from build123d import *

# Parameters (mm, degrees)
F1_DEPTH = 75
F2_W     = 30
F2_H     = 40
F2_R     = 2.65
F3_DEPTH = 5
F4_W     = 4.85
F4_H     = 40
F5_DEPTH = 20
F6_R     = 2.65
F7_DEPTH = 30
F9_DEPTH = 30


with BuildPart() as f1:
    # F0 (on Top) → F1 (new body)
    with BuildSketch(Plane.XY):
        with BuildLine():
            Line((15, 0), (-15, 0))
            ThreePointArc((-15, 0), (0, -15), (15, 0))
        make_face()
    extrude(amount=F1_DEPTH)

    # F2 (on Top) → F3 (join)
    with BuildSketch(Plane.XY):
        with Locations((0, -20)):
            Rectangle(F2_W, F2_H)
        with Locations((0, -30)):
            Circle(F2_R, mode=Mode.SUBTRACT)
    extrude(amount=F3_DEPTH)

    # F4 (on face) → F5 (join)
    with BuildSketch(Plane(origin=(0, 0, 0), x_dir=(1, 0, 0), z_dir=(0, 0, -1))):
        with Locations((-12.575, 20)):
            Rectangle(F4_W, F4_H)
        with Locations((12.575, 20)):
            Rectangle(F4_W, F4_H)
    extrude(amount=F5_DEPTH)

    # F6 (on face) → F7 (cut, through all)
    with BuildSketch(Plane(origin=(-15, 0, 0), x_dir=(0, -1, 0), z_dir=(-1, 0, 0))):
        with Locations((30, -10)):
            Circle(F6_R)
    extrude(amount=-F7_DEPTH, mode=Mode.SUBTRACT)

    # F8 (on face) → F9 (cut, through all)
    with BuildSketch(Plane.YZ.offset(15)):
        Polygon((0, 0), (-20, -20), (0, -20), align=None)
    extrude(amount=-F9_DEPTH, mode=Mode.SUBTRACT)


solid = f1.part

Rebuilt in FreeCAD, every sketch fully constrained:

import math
import FreeCAD as App
import Part
import Sketcher
Q = App.Units.Quantity


def add_polygon(sketch, points):
    """Adds a closed chain of lines whose ends are joined by coincident constraints."""
    first, n = sketch.GeometryCount, len(points)
    for a, b in zip(points, points[1:] + points[:1]):
        sketch.addGeometry(Part.LineSegment(App.Vector(*a, 0), App.Vector(*b, 0)), False)
    for i in range(n):
        sketch.addConstraint(Sketcher.Constraint("Coincident", first + i, 2, first + (i + 1) % n, 1))

doc = App.newDocument("Part")
body = doc.addObject("PartDesign::Body", "Body")

sketch1 = doc.addObject("Sketcher::SketchObject", "Sketch")
body.addObject(sketch1)
sketch1.AttachmentSupport = (doc.XY_Plane, [""])
sketch1.MapMode = "FlatFace"
sketch1.addGeometry([
    Part.LineSegment(App.Vector(15, 0, 0), App.Vector(-15, 0, 0)),
    Part.ArcOfCircle(Part.Circle(App.Vector(0, 0, 0), App.Vector(0, 0, 1), 15), math.radians(180), math.radians(360)),
], False)
sketch1.addConstraint([
    Sketcher.Constraint("Coincident", 0, 1, 1, 2),
    Sketcher.Constraint("Coincident", 1, 1, 0, 2),
    Sketcher.Constraint("Horizontal", 0),
    Sketcher.Constraint("Coincident", 1, 3, -1, 1),
    Sketcher.Constraint("PointOnObject", 0, 1, -1),
    Sketcher.Constraint("Radius", 1, Q("15 mm")),
])
pad1 = doc.addObject("PartDesign::Pad", "Pad")
body.addObject(pad1)
pad1.Profile = sketch1
pad1.Length = 75

sketch2 = doc.addObject("Sketcher::SketchObject", "Sketch001")
body.addObject(sketch2)
sketch2.AttachmentSupport = (doc.XY_Plane, [""])
sketch2.MapMode = "FlatFace"
add_polygon(sketch2, [(-15, 0), (-15, -40), (15, -40), (15, 0)])
sketch2.addGeometry(Part.Circle(App.Vector(0, -30, 0), App.Vector(0, 0, 1), 2.6), False)
sketch2.addConstraint([
    Sketcher.Constraint("Vertical", 0),
    Sketcher.Constraint("Horizontal", 1),
    Sketcher.Constraint("Vertical", 2),
    Sketcher.Constraint("Horizontal", 3),
    Sketcher.Constraint("Symmetric", 2, 2, 3, 2, -1, 1),
    Sketcher.Constraint("PointOnObject", 4, 3, -2),
    Sketcher.Constraint("Diameter", 4, Q("5.3 mm")),
    Sketcher.Constraint("DistanceX", 1, 1, 1, 2, Q("30 mm")),
    Sketcher.Constraint("DistanceY", 0, 2, 0, 1, Q("40 mm")),
    Sketcher.Constraint("DistanceY", 4, 3, -1, 1, Q("30 mm")),
])
pad2 = doc.addObject("PartDesign::Pad", "Pad001")
body.addObject(pad2)
pad2.Profile = sketch2
pad2.Length = 5

sketch3 = doc.addObject("Sketcher::SketchObject", "Sketch002")
body.addObject(sketch3)
sketch3.AttachmentSupport = (doc.XY_Plane, [""])
sketch3.MapMode = "FlatFace"
add_polygon(sketch3, [(-15, -40), (-15, 0), (-10.2, 0), (-10.2, -40)])
add_polygon(sketch3, [(10.2, -40), (10.2, 0), (15, 0), (15, -40)])
sketch3.addConstraint([
    Sketcher.Constraint("Vertical", 0),
    Sketcher.Constraint("Horizontal", 1),
    Sketcher.Constraint("Vertical", 2),
    Sketcher.Constraint("Horizontal", 3),
    Sketcher.Constraint("Vertical", 4),
    Sketcher.Constraint("Horizontal", 5),
    Sketcher.Constraint("Vertical", 6),
    Sketcher.Constraint("Horizontal", 7),
    Sketcher.Constraint("Symmetric", 1, 2, 4, 2, -1, 1),
    Sketcher.Constraint("Symmetric", 0, 2, 5, 2, -2),
    Sketcher.Constraint("Horizontal", 3, 2, 6, 2),
    Sketcher.Constraint("DistanceY", 0, 1, 0, 2, Q("40 mm")),
    Sketcher.Constraint("DistanceX", 0, 2, -1, 1, Q("15 mm")),
    Sketcher.Constraint("DistanceX", 1, 1, 1, 2, Q("4.85 mm")),
])
pad3 = doc.addObject("PartDesign::Pad", "Pad002")
body.addObject(pad3)
pad3.Profile = sketch3
pad3.Length = 20
pad3.Reversed = True

sketch4 = doc.addObject("Sketcher::SketchObject", "Sketch003")
body.addObject(sketch4)
sketch4.AttachmentSupport = (doc.YZ_Plane, [""])
sketch4.MapMode = "FlatFace"
sketch4.AttachmentOffset = App.Placement(App.Vector(0, 0, -15), App.Rotation())
sketch4.addGeometry(Part.Circle(App.Vector(-30, -10, 0), App.Vector(0, 0, 1), 2.6), False)
sketch4.addConstraint([
    Sketcher.Constraint("Diameter", 0, Q("5.3 mm")),
    Sketcher.Constraint("DistanceX", 0, 3, -1, 1, Q("30 mm")),
    Sketcher.Constraint("DistanceY", 0, 3, -1, 1, Q("10 mm")),
])
pocket1 = doc.addObject("PartDesign::Pocket", "Pocket")
body.addObject(pocket1)
pocket1.Profile = sketch4
pocket1.Type = "ThroughAll"
pocket1.Reversed = True

sketch5 = doc.addObject("Sketcher::SketchObject", "Sketch004")
body.addObject(sketch5)
sketch5.AttachmentSupport = (doc.YZ_Plane, [""])
sketch5.MapMode = "FlatFace"
sketch5.AttachmentOffset = App.Placement(App.Vector(0, 0, 15), App.Rotation())
add_polygon(sketch5, [(0, 0), (-20, -20), (0, -20)])
sketch5.addConstraint([
    Sketcher.Constraint("Horizontal", 1),
    Sketcher.Constraint("Vertical", 2),
    Sketcher.Constraint("Coincident", 2, 2, -1, 1),
    Sketcher.Constraint("Equal", 1, 2),
    Sketcher.Constraint("DistanceX", 1, 1, 1, 2, Q("20 mm")),
])
pocket2 = doc.addObject("PartDesign::Pocket", "Pocket001")
body.addObject(pocket2)
pocket2.Profile = sketch5
pocket2.Type = "ThroughAll"

doc.recompute()
